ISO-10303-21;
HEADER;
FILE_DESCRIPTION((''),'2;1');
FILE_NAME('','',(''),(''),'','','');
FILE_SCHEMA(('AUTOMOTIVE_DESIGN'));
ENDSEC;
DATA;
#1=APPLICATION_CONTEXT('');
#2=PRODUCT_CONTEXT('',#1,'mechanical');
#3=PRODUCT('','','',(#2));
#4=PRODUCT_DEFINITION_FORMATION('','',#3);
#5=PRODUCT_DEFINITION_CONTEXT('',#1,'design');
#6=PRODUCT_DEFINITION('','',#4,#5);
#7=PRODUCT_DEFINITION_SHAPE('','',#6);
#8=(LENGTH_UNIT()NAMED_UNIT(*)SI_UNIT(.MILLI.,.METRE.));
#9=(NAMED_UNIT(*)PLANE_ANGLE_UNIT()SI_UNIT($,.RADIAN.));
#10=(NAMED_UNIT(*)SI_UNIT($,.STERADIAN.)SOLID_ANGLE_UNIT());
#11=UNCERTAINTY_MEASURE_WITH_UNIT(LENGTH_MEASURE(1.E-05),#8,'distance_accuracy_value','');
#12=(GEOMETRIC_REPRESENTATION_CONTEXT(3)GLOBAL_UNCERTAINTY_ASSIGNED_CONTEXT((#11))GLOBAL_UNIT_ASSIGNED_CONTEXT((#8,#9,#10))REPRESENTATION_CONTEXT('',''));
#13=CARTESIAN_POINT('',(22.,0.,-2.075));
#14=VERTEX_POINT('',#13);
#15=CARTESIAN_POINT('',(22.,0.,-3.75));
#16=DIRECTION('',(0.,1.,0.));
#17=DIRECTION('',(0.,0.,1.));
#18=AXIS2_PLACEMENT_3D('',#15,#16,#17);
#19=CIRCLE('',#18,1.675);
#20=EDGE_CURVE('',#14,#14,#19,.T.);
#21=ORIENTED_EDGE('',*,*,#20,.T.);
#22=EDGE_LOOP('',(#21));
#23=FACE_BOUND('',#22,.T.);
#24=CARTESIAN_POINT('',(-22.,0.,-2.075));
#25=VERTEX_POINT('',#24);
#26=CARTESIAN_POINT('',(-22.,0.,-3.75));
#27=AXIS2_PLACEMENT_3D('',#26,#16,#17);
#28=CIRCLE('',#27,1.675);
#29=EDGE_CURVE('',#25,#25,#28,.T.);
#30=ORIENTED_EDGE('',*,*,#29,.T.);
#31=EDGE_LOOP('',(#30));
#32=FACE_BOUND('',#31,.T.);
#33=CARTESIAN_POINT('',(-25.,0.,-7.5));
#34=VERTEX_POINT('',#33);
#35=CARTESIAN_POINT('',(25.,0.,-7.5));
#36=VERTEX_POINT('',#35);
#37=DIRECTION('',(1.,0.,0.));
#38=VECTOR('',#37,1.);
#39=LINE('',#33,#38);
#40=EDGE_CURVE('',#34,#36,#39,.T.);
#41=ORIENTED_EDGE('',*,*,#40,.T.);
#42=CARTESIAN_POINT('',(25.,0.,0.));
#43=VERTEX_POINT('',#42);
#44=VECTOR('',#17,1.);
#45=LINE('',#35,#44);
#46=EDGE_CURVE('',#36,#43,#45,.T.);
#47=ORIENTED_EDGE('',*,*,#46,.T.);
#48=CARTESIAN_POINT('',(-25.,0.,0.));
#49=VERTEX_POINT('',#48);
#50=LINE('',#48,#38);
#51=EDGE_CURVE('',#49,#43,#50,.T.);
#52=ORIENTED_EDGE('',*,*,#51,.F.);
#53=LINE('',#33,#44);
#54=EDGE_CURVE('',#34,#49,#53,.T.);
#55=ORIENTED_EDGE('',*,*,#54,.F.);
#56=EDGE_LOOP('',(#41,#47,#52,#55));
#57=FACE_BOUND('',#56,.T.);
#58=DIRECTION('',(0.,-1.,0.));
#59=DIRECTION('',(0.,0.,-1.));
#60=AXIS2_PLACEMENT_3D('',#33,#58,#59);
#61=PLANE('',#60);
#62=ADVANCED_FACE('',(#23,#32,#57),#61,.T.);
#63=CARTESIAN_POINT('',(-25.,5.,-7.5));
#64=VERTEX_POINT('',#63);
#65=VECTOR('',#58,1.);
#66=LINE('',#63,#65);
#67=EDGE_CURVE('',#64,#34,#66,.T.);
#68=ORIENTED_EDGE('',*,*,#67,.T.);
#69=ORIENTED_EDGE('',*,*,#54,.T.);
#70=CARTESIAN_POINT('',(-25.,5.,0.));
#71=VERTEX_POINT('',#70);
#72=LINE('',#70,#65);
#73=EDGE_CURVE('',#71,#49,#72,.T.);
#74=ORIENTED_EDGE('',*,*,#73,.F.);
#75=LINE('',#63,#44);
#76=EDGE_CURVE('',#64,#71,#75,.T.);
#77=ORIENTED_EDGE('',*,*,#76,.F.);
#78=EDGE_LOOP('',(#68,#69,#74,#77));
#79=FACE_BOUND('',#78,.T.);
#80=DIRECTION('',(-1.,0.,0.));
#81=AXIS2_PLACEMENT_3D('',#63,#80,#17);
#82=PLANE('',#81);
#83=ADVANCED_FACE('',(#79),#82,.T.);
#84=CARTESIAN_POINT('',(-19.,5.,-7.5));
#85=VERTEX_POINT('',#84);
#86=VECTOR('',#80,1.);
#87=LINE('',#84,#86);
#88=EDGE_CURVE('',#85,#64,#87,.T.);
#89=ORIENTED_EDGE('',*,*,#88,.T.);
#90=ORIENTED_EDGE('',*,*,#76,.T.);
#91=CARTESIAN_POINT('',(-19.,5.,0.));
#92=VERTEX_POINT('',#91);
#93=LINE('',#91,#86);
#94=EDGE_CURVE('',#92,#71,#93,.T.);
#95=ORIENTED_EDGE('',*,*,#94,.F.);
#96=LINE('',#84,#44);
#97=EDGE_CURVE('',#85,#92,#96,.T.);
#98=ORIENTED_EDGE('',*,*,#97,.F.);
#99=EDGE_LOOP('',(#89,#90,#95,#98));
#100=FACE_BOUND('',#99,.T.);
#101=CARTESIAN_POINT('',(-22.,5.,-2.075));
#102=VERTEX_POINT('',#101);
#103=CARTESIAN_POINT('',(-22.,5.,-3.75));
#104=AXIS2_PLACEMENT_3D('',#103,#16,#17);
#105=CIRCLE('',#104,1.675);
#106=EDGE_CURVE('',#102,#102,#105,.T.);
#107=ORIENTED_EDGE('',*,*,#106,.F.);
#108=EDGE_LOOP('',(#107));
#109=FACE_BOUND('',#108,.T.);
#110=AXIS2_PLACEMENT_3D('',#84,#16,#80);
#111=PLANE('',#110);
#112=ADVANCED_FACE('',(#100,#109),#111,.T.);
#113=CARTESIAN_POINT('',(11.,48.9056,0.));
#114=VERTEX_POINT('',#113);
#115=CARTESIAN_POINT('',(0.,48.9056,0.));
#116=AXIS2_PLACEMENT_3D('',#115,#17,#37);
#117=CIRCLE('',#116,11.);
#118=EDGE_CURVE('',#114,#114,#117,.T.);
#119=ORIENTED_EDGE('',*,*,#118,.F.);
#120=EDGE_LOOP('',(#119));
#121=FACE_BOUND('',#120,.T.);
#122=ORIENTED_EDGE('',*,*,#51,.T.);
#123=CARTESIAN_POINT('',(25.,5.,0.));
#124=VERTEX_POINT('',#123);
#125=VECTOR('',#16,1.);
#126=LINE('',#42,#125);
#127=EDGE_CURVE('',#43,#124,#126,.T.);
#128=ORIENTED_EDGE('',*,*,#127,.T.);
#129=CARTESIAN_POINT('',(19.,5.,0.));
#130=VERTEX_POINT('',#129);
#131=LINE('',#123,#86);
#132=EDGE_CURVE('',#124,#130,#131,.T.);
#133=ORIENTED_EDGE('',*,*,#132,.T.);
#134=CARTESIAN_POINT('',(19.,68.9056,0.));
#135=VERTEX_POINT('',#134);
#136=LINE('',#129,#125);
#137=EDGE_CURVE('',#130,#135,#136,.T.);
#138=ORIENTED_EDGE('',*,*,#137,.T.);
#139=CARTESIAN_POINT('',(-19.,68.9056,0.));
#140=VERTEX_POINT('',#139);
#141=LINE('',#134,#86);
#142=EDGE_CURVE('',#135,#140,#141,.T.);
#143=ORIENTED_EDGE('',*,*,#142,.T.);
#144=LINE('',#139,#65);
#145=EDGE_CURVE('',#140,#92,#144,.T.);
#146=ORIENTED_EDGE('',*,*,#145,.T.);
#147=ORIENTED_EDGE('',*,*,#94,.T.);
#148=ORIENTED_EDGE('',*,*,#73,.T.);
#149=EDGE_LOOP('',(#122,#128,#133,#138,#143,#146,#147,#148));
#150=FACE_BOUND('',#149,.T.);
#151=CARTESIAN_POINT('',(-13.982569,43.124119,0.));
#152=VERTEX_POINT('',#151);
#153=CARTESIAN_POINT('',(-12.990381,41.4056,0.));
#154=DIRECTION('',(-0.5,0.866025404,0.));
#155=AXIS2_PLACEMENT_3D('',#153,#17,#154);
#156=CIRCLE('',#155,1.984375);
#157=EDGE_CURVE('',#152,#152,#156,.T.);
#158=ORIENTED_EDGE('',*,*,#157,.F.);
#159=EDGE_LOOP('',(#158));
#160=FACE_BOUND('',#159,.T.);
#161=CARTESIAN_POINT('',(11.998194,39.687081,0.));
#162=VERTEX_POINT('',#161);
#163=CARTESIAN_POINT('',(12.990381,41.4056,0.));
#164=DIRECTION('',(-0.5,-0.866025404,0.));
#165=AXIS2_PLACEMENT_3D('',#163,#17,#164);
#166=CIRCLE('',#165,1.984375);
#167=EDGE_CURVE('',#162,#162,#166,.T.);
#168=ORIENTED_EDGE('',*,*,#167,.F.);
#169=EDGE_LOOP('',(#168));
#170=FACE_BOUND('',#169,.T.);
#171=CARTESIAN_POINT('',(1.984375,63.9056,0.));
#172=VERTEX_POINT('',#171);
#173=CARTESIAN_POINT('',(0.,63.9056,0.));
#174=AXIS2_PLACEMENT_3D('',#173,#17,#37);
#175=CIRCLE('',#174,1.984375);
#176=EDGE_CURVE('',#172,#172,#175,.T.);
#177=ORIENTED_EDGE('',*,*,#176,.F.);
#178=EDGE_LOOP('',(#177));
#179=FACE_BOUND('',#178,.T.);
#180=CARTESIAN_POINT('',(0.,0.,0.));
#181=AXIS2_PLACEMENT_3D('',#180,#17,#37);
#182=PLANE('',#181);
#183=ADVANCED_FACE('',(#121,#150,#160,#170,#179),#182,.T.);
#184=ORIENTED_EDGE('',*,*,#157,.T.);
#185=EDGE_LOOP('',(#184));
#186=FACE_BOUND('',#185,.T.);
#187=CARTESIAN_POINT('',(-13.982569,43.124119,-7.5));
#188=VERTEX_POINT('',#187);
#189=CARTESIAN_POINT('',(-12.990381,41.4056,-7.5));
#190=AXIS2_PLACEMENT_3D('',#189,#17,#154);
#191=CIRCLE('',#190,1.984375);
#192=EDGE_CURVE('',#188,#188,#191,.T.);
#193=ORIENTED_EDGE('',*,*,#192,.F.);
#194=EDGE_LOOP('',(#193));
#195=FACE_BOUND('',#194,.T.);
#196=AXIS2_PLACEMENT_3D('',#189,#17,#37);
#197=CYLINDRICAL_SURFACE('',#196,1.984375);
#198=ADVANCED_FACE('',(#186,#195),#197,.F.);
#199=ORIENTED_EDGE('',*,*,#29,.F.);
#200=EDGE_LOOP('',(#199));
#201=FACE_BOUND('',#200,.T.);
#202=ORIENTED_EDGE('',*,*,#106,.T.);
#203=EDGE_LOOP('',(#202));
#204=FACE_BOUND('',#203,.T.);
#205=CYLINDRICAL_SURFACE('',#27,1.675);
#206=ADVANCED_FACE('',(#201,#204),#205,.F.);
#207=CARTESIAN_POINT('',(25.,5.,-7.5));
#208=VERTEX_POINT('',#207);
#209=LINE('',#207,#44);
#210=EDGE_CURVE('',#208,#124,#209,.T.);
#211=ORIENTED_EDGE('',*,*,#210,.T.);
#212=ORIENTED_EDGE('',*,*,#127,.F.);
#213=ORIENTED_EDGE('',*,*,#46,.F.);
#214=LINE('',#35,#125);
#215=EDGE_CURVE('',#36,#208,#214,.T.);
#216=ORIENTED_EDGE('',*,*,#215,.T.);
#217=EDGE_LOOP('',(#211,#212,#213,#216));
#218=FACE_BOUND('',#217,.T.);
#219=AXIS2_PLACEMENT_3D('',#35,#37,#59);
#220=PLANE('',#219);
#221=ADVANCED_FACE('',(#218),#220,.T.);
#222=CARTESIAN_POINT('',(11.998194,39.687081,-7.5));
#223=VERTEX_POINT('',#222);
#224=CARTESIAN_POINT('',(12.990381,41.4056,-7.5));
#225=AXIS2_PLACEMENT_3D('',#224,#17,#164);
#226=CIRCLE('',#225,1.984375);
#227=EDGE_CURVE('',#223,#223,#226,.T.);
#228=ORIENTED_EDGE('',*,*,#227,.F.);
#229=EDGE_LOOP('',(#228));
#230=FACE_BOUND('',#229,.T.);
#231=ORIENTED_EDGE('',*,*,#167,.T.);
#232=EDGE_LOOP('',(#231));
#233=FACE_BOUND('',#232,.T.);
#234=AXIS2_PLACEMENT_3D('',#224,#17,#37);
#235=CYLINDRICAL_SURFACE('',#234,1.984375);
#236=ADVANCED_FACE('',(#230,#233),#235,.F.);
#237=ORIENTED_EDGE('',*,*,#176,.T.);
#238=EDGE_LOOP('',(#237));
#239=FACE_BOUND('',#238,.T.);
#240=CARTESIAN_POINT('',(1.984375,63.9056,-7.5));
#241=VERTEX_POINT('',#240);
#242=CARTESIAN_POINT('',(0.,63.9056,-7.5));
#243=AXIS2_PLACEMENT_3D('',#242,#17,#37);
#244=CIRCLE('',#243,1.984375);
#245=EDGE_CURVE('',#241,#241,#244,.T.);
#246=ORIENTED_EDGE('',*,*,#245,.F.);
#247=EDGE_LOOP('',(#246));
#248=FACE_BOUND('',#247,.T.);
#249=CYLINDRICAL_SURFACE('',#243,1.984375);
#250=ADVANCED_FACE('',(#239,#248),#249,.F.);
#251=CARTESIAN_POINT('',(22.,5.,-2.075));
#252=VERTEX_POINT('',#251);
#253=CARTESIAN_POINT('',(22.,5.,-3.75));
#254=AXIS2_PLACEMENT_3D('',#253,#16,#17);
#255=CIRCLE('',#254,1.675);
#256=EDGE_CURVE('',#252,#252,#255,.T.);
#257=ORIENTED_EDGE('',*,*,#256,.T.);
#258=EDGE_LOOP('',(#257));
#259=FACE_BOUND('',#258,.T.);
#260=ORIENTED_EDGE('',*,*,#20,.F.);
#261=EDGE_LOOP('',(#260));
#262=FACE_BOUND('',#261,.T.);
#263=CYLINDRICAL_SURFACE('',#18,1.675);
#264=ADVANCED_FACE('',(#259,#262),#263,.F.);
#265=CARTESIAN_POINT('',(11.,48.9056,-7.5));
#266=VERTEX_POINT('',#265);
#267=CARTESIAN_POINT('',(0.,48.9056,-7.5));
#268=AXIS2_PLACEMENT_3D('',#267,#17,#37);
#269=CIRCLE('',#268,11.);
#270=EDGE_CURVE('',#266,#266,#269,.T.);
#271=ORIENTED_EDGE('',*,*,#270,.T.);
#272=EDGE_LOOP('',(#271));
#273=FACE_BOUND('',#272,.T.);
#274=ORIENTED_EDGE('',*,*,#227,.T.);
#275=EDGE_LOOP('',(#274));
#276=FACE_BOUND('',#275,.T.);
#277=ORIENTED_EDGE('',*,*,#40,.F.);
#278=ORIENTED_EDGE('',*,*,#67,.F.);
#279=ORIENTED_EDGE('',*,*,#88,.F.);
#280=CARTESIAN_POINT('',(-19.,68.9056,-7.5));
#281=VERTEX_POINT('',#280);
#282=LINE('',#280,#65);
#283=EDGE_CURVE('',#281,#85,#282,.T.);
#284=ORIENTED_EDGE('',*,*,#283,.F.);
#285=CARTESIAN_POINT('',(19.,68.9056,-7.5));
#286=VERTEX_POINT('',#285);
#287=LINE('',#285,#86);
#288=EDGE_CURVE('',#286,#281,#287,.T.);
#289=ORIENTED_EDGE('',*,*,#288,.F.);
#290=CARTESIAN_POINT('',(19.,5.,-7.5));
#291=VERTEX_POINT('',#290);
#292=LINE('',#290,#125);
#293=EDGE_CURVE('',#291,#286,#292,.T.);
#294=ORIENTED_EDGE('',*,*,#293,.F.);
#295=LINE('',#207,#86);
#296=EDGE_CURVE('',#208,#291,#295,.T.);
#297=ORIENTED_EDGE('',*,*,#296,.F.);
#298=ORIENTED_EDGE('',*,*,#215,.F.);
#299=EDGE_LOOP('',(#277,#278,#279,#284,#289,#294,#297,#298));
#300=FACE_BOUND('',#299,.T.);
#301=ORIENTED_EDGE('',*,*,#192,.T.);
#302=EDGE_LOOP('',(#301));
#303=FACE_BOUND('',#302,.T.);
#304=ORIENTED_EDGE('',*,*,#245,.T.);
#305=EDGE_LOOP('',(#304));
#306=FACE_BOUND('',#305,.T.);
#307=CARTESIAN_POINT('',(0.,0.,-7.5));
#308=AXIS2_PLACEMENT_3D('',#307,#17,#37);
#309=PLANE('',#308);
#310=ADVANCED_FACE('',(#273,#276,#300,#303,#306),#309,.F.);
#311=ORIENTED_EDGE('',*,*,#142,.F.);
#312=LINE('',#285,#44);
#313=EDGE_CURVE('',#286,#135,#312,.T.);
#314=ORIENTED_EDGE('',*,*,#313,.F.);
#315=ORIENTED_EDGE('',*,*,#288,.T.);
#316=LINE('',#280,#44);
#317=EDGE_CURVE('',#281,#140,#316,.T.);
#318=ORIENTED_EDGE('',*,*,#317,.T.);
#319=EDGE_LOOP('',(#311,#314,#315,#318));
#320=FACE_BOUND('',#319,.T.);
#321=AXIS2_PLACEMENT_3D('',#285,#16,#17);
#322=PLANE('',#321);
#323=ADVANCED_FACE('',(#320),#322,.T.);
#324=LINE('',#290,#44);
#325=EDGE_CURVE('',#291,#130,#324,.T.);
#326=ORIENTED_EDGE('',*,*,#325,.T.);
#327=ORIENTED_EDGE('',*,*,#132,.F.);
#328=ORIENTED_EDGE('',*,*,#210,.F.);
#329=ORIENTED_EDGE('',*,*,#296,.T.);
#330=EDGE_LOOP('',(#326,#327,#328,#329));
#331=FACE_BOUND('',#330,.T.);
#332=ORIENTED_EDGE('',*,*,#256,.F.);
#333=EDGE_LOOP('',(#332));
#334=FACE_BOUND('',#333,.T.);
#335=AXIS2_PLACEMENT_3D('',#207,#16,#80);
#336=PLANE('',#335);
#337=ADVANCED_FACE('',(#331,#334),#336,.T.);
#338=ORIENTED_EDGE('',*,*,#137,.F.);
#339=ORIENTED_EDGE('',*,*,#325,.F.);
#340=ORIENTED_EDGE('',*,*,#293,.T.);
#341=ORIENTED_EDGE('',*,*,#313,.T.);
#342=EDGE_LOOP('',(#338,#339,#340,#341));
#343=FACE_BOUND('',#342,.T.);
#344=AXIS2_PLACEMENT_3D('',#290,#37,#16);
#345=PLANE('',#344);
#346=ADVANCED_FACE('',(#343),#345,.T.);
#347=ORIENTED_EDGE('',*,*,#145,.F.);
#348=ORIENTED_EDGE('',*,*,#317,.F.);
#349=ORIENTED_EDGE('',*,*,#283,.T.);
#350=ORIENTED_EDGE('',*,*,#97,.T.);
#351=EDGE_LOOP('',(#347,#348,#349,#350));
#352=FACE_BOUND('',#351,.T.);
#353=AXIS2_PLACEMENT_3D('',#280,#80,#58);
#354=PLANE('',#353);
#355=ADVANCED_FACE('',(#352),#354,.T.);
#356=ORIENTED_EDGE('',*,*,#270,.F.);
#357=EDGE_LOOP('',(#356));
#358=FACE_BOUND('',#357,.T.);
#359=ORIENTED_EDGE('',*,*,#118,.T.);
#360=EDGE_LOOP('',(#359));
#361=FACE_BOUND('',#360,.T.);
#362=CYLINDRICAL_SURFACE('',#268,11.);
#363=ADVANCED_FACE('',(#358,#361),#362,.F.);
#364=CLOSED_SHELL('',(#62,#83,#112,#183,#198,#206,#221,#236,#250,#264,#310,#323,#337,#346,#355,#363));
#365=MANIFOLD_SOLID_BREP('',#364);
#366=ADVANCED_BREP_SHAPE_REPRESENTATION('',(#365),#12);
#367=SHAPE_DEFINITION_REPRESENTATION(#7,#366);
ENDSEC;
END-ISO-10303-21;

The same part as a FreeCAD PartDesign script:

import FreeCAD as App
import Part
import Sketcher

V = App.Vector
Q = App.Units.Quantity


def add_polygon(sketch, points):
    """Adds a closed chain of lines whose ends are joined by coincident constraints."""
    first, n = sketch.GeometryCount, len(points)
    for a, b in zip(points, points[1:] + points[:1]):
        sketch.addGeometry(Part.LineSegment(App.Vector(*a, 0), App.Vector(*b, 0)), False)
    for i in range(n):
        sketch.addConstraint(Sketcher.Constraint("Coincident", first + i, 2, first + (i + 1) % n, 1))

doc = App.newDocument("Part")
body = doc.addObject("PartDesign::Body", "Body")

# Sketch on XY plane
sketch1 = body.newObject("Sketcher::SketchObject", "Sketch")
sketch1.AttachmentSupport = (doc.getObject("XY_Plane"), [""])
sketch1.MapMode = "FlatFace"
add_polygon(sketch1, [(-25, 0), (25, 0), (25, 5), (19, 5), (19, 69), (-19, 69), (-19, 5), (-25, 5)])  # lines 0-7
sketch1.addGeometry(Part.Circle(V(0, 49, 0), V(0, 0, 1), 11), False)  # 8
sketch1.addConstraint([
    Sketcher.Constraint("Horizontal", 0),
    Sketcher.Constraint("Vertical", 1),
    Sketcher.Constraint("Horizontal", 2),
    Sketcher.Constraint("Vertical", 3),
    Sketcher.Constraint("Horizontal", 4),
    Sketcher.Constraint("Vertical", 5),
    Sketcher.Constraint("Horizontal", 6),
    Sketcher.Constraint("Vertical", 7),
    Sketcher.Constraint("Symmetric", 0, 2, 7, 2, -1, 1),
    Sketcher.Constraint("Symmetric", 2, 2, 5, 2, -2),
    Sketcher.Constraint("PointOnObject", 8, 3, -2),
    Sketcher.Constraint("Diameter", 8, Q("22 mm")),
    Sketcher.Constraint("DistanceX", 0, 1, 0, 2, Q("50 mm")),
    Sketcher.Constraint("DistanceX", 2, 2, 2, 1, Q("6 mm")),
    Sketcher.Constraint("DistanceY", 1, 1, 1, 2, Q("5 mm")),
    Sketcher.Constraint("DistanceY", 8, 3, 3, 2, Q("20 mm")),
    Sketcher.Constraint("DistanceY", 3, 1, 3, 2, Q("63.9056 mm")),
])
pad1 = body.newObject("PartDesign::Pad", "Pad")
pad1.Profile = sketch1
pad1.Length = 7.5
pad1.Reversed = True

# Sketch on XY plane
sketch2 = body.newObject("Sketcher::SketchObject", "Sketch001")
sketch2.AttachmentSupport = (doc.getObject("XY_Plane"), [""])
sketch2.MapMode = "FlatFace"
sketch2.addGeometry(Part.Circle(V(0, 63.9, 0), V(0, 0, 1), 2), False)
sketch2.addConstraint([
    Sketcher.Constraint("PointOnObject", 0, 3, -2),
    Sketcher.Constraint("Diameter", 0, Q("3.96875 mm")),
    Sketcher.Constraint("DistanceY", -1, 1, 0, 3, Q("63.9056 mm")),
])
pocket1 = body.newObject("PartDesign::Pocket", "Pocket")
pocket1.Profile = sketch2
pocket1.Type = "ThroughAll"
doc.recompute()

datumline = body.newObject("PartDesign::Line", "DatumLine")
datumline.Placement = App.Placement(V(0, 48.9056, 0), App.Rotation(V(0, 0, 1), V(0, 0, 1)))
polarpattern = body.newObject("PartDesign::PolarPattern", "PolarPattern")
polarpattern.Originals = [pocket1]
polarpattern.Axis = (datumline, [""])
polarpattern.Angle = 360
polarpattern.Occurrences = 3
body.Tip = polarpattern

# Sketch on XZ plane
sketch3 = body.newObject("Sketcher::SketchObject", "Sketch002")
sketch3.AttachmentSupport = (doc.getObject("XZ_Plane"), [""])
sketch3.MapMode = "FlatFace"
sketch3.AttachmentOffset = App.Placement(V(0, 0, -5), App.Rotation())
sketch3.addGeometry([
    Part.Circle(V(22, -3.8, 0), V(0, 0, 1), 1.7),
    Part.Circle(V(-22, -3.8, 0), V(0, 0, 1), 1.7),
], False)
sketch3.addConstraint([
    Sketcher.Constraint("Equal", 0, 1),
    Sketcher.Constraint("Symmetric", 0, 3, 1, 3, -2),
    Sketcher.Constraint("Diameter", 0, Q("3.35 mm")),
    Sketcher.Constraint("DistanceX", -1, 1, 0, 3, Q("22 mm")),
    Sketcher.Constraint("DistanceY", 0, 3, -1, 1, Q("3.75 mm")),
])
pocket2 = body.newObject("PartDesign::Pocket", "Pocket001")
pocket2.Profile = sketch3
pocket2.Type = "ThroughAll"
pocket2.Reversed = True

doc.recompute()
